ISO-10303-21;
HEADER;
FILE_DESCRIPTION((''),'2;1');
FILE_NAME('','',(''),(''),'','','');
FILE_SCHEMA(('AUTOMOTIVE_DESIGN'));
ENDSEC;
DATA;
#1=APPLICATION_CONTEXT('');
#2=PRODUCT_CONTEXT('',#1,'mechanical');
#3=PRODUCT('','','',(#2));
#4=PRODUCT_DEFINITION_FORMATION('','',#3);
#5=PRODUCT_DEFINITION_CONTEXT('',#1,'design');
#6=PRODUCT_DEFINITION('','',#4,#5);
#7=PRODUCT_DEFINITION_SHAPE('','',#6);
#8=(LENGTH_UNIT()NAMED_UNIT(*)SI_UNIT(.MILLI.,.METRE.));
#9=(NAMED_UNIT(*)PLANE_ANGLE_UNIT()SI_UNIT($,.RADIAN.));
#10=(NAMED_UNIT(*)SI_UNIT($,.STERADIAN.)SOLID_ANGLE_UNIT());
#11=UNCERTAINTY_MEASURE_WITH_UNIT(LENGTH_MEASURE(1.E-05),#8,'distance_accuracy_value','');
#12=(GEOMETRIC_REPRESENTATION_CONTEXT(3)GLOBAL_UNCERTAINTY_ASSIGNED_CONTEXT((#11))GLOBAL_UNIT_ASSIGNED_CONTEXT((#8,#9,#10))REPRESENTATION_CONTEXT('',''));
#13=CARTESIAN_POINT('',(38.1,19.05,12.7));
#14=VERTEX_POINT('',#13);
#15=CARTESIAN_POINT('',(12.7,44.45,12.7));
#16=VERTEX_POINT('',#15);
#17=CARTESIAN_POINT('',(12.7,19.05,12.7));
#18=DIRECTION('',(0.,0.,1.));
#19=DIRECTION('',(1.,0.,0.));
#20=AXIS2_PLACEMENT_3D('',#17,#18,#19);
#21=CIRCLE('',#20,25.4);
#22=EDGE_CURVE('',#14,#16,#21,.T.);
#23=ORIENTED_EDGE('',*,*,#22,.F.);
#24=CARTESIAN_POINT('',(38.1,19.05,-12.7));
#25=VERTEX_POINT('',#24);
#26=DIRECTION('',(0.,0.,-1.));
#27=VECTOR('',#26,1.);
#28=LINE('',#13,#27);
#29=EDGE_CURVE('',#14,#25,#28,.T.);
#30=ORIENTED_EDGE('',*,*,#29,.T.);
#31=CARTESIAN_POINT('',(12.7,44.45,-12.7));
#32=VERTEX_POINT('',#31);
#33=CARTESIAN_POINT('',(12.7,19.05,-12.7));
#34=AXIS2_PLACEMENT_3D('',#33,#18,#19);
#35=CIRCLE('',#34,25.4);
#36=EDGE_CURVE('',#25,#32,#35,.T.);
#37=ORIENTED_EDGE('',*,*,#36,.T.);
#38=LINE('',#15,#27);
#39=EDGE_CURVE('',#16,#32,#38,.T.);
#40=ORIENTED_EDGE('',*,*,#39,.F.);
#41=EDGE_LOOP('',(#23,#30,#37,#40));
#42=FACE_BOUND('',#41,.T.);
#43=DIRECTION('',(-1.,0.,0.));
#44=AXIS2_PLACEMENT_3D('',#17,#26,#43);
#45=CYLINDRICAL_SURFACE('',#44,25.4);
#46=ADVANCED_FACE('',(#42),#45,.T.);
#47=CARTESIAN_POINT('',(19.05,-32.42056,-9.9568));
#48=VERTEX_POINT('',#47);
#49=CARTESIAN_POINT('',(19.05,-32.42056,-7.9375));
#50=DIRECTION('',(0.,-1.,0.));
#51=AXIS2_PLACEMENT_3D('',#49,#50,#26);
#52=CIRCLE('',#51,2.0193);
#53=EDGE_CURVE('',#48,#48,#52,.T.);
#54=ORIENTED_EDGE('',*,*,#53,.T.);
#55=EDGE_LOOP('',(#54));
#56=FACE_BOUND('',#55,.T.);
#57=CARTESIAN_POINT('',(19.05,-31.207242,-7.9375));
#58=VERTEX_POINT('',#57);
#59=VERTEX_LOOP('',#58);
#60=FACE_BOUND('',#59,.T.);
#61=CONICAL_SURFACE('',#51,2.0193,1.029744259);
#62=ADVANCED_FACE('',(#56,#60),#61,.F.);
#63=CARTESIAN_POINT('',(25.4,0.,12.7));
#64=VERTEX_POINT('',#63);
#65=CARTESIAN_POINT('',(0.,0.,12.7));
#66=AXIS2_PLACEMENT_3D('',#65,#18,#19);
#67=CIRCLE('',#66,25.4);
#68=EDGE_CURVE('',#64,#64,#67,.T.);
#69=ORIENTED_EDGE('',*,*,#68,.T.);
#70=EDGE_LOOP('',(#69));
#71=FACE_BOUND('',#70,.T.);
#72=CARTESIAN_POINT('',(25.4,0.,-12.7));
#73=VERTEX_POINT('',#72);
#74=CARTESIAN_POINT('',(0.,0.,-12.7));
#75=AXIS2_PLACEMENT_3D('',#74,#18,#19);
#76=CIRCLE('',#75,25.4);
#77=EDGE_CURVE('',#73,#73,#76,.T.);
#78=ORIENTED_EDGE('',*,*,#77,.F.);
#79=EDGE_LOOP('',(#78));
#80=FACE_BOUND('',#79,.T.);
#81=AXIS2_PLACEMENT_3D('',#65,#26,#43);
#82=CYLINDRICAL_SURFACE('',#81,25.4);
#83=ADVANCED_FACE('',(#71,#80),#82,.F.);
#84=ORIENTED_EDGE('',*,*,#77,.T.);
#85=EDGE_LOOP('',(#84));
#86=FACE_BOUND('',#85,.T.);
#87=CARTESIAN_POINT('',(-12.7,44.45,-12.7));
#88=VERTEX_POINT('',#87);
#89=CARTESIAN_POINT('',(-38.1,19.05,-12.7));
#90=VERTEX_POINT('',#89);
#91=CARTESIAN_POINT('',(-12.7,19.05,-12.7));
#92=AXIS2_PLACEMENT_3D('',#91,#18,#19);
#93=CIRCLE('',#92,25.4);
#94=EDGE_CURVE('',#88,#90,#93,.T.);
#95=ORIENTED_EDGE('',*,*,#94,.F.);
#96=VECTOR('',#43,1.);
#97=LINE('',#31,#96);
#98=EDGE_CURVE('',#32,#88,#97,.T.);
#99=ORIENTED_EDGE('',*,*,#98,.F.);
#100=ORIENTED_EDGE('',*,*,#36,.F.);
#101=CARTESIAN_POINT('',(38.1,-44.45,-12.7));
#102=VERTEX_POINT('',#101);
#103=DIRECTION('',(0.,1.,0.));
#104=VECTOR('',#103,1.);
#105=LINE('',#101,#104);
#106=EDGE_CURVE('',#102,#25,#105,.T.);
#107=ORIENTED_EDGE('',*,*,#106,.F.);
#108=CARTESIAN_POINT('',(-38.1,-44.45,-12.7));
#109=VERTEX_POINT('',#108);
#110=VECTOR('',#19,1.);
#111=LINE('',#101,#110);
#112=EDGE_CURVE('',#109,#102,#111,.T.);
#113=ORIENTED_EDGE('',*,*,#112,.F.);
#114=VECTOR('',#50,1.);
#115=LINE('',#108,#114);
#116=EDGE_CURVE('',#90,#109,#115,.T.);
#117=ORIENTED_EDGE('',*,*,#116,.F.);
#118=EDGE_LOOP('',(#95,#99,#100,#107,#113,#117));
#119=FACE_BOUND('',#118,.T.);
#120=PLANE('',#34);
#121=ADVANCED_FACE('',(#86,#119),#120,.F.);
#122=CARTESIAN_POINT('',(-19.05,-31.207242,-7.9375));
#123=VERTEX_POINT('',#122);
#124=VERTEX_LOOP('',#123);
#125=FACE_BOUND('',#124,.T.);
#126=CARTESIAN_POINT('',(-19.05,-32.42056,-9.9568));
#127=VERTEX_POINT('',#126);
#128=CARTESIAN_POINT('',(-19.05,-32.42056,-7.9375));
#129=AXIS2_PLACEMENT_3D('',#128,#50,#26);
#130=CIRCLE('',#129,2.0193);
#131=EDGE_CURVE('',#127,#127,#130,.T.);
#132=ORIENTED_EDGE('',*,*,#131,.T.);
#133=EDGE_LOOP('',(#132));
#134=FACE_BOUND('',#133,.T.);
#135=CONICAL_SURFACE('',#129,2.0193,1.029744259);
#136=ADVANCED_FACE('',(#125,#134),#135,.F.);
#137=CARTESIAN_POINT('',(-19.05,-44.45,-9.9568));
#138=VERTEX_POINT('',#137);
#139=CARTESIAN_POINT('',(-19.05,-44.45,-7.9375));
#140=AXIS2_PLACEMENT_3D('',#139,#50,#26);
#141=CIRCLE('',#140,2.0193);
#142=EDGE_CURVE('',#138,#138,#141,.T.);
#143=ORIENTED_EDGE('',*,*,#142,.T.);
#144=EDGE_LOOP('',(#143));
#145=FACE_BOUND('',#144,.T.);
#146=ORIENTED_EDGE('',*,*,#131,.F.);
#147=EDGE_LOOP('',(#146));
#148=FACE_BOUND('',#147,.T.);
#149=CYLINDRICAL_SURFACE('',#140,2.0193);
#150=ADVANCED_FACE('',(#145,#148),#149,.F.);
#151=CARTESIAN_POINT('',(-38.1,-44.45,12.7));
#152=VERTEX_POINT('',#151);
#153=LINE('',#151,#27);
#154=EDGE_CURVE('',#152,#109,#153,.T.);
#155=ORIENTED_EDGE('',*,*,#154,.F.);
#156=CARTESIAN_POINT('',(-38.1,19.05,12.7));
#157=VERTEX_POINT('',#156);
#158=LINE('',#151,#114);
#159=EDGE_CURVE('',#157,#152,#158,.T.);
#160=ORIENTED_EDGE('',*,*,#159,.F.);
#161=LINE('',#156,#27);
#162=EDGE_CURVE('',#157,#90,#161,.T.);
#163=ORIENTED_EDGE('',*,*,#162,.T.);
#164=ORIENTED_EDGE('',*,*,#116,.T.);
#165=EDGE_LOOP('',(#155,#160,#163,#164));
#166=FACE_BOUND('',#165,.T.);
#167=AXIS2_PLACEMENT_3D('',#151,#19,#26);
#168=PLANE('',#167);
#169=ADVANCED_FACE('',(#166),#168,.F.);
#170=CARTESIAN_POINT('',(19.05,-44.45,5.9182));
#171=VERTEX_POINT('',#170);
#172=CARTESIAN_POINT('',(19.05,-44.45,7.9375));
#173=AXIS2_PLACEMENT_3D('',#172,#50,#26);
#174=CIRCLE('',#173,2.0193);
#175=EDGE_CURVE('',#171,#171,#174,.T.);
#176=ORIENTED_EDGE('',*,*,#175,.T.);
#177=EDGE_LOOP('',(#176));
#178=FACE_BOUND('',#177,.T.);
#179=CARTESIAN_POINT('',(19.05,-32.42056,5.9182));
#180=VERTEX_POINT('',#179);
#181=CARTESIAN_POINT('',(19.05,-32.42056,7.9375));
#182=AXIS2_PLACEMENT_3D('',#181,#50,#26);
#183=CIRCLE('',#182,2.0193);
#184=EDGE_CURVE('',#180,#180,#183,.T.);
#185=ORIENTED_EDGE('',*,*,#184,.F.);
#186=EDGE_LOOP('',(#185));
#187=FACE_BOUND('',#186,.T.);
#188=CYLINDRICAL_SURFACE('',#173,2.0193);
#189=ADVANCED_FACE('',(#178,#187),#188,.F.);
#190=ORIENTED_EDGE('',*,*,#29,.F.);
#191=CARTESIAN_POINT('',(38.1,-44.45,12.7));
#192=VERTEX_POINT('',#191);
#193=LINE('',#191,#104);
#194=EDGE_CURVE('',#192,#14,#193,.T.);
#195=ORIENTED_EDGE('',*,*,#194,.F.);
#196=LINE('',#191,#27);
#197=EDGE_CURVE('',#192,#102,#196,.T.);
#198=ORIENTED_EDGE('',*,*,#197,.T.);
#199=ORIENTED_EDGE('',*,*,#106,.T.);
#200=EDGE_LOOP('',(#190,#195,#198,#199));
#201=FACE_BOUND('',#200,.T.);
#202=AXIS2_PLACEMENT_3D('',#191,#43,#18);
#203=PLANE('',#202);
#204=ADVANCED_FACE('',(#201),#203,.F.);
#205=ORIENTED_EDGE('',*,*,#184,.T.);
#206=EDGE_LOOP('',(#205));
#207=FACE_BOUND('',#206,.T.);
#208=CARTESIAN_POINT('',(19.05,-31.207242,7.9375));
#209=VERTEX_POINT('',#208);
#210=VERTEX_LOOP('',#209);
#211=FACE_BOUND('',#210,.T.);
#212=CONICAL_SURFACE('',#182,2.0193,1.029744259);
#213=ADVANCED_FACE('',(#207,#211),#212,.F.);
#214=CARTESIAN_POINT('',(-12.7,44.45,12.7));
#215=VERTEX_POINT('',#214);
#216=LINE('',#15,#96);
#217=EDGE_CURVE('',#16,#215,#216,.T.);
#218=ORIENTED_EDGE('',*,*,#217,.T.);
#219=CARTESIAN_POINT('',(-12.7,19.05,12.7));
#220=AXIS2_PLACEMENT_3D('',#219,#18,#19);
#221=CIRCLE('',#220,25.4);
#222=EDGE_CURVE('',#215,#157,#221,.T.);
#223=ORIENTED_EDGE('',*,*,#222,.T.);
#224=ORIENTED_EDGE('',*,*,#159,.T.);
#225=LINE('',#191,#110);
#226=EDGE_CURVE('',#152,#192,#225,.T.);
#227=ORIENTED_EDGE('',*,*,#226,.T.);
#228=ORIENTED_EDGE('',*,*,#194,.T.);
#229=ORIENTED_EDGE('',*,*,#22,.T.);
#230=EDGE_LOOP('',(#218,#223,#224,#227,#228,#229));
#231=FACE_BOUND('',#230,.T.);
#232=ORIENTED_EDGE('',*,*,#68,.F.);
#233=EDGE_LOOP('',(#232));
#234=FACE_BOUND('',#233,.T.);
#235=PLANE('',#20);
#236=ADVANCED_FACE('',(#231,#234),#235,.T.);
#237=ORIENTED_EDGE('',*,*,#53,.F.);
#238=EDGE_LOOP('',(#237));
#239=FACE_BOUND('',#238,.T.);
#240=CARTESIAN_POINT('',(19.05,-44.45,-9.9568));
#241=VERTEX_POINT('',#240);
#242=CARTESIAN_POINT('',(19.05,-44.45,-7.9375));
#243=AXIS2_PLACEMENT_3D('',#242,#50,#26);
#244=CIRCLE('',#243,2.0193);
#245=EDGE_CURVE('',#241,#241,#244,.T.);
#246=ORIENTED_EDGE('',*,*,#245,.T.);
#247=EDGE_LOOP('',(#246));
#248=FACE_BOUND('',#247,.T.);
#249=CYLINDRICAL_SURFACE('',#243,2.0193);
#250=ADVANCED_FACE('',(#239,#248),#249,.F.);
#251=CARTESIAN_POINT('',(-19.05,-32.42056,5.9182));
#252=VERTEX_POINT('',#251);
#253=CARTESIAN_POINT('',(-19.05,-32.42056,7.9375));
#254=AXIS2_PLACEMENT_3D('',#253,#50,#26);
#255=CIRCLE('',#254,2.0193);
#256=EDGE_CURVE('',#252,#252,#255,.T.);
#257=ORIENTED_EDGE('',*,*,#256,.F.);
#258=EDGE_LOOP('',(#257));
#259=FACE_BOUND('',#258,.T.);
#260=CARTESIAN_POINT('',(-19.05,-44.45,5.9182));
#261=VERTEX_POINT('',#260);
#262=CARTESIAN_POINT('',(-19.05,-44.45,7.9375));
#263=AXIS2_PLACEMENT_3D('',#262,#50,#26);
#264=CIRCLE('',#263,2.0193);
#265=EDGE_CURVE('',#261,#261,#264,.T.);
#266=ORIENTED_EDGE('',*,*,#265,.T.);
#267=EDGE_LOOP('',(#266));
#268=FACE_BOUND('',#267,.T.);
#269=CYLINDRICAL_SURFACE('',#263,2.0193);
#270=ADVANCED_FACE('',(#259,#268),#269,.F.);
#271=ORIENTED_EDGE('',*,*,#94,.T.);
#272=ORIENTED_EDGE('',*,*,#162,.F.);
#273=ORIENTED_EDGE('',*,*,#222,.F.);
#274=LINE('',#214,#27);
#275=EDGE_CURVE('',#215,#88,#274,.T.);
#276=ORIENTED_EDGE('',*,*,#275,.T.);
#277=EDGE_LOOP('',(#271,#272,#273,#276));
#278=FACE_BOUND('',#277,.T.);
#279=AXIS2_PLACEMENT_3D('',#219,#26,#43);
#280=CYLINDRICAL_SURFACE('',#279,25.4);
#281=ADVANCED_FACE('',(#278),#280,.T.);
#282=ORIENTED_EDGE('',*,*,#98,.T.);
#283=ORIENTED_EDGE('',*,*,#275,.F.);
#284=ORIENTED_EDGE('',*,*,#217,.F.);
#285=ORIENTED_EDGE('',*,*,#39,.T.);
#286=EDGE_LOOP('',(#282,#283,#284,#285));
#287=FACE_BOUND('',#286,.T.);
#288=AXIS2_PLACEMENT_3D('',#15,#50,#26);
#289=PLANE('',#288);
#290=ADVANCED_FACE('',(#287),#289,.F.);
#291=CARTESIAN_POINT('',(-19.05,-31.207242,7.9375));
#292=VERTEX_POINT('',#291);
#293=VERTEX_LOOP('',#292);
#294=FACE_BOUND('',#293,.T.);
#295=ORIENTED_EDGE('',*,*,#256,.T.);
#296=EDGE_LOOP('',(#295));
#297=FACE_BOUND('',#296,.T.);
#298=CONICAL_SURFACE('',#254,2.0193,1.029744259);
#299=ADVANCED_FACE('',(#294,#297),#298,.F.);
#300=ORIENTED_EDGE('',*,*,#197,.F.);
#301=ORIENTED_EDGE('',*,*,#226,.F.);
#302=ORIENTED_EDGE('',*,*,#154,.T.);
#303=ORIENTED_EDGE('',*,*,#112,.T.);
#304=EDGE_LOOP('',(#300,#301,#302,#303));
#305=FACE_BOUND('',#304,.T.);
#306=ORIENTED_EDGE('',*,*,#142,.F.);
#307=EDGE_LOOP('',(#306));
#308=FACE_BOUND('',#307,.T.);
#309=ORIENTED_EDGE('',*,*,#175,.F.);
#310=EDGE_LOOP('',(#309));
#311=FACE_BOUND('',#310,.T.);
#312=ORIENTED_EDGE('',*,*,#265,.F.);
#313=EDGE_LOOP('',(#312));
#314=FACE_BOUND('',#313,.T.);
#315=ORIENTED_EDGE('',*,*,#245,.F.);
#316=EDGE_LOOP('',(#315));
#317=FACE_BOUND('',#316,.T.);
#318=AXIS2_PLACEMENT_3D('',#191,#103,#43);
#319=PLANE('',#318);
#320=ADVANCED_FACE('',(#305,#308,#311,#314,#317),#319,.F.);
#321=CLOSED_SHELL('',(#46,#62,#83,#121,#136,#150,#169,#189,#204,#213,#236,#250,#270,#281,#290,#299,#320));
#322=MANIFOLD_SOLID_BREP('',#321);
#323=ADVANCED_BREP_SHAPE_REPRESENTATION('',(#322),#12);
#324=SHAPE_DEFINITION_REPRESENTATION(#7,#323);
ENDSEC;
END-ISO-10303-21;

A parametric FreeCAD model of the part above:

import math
import FreeCAD as App
import Part
import Sketcher
Q = App.Units.Quantity

doc = App.newDocument("Part")
body = doc.addObject("PartDesign::Body", "Body")

# Sketch on XY plane
sketch1 = body.newObject("Sketcher::SketchObject", "Sketch")
sketch1.AttachmentSupport = (doc.getObject("XY_Plane"), [""])
sketch1.MapMode = "FlatFace"
sketch1.addGeometry([
    Part.LineSegment(App.Vector(-38, -44, 0), App.Vector(38, -44, 0)),  # 0
    Part.LineSegment(App.Vector(38, -44, 0), App.Vector(38, 19, 0)),  # 1
    Part.ArcOfCircle(Part.Circle(App.Vector(13, 19, 0), App.Vector(0, 0, 1), 25), math.radians(0), math.radians(90)),  # 2
    Part.LineSegment(App.Vector(13, 44, 0), App.Vector(-13, 44, 0)),  # 3
    Part.ArcOfCircle(Part.Circle(App.Vector(-13, 19, 0), App.Vector(0, 0, 1), 25), math.radians(90), math.radians(180)),  # 4
    Part.LineSegment(App.Vector(-38, 19, 0), App.Vector(-38, -44, 0)),  # 5
    Part.Circle(App.Vector(0, 0, 0), App.Vector(0, 0, 1), 25),  # 6
], False)
sketch1.addConstraint([
    Sketcher.Constraint("Coincident", 0, 2, 1, 1),
    Sketcher.Constraint("Tangent", 1, 2, 2, 1),
    Sketcher.Constraint("Tangent", 2, 2, 3, 1),
    Sketcher.Constraint("Tangent", 3, 2, 4, 1),
    Sketcher.Constraint("Tangent", 4, 2, 5, 1),
    Sketcher.Constraint("Coincident", 5, 2, 0, 1),
    Sketcher.Constraint("Horizontal", 0),
    Sketcher.Constraint("Vertical", 1),
    Sketcher.Constraint("Horizontal", 3),
    Sketcher.Constraint("Vertical", 5),
    Sketcher.Constraint("Coincident", 6, 3, -1, 1),
    Sketcher.Constraint("Equal", 2, 4),
    Sketcher.Constraint("Equal", 4, 6),
    Sketcher.Constraint("Diameter", 6, Q("2 in")),
    Sketcher.Constraint("DistanceX", 0, 1, 0, 2, Q("3 in")),
    Sketcher.Constraint("DistanceY", 1, 1, 1, 2, Q("2.5 in")),
    Sketcher.Constraint("DistanceX", -1, 1, 2, 3, Q("0.5 in")),
    Sketcher.Constraint("DistanceY", -1, 1, 2, 3, Q("0.75 in")),
])
pad1 = body.newObject("PartDesign::Pad", "Pad")
pad1.Profile = sketch1
pad1.Length = Q("1 in")
pad1.Midplane = True

# Sketch on XZ plane
sketch2 = body.newObject("Sketcher::SketchObject", "Sketch001")
sketch2.AttachmentSupport = (doc.getObject("XZ_Plane"), [""])
sketch2.MapMode = "FlatFace"
sketch2.AttachmentOffset = App.Placement(App.Vector(0, 0, 1.75 * 25.4), App.Rotation())
sketch2.addGeometry([
    Part.Circle(App.Vector(-19.1, 7.9, 0), App.Vector(0, 0, 1), 2),
    Part.Circle(App.Vector(19.1, 7.9, 0), App.Vector(0, 0, 1), 2),
    Part.Circle(App.Vector(19.1, -7.9, 0), App.Vector(0, 0, 1), 2),
    Part.Circle(App.Vector(-19.1, -7.9, 0), App.Vector(0, 0, 1), 2),
], False)
sketch2.addConstraint([
    Sketcher.Constraint("Equal", 0, 1),
    Sketcher.Constraint("Equal", 1, 2),
    Sketcher.Constraint("Equal", 2, 3),
    Sketcher.Constraint("Symmetric", 0, 3, 2, 3, -1, 1),
    Sketcher.Constraint("Symmetric", 1, 3, 3, 3, -1, 1),
    Sketcher.Constraint("Symmetric", 0, 3, 1, 3, -2),
    Sketcher.Constraint("Diameter", 0, Q("0.159 in")),
    Sketcher.Constraint("DistanceX", 0, 3, 1, 3, Q("1.5 in")),
    Sketcher.Constraint("DistanceY", -1, 1, 0, 3, Q("0.3125 in")),
])
doc.recompute()
hole = body.newObject("PartDesign::Hole", "Hole")
hole.Profile = sketch2
hole.ThreadType = "None"
hole.Diameter = Q("0.159 in")
hole.DepthType = "Dimension"
hole.Depth = Q("0.4736 in")
hole.DrillPoint = "Angled"
hole.DrillPointAngle = 118

doc.recompute()
